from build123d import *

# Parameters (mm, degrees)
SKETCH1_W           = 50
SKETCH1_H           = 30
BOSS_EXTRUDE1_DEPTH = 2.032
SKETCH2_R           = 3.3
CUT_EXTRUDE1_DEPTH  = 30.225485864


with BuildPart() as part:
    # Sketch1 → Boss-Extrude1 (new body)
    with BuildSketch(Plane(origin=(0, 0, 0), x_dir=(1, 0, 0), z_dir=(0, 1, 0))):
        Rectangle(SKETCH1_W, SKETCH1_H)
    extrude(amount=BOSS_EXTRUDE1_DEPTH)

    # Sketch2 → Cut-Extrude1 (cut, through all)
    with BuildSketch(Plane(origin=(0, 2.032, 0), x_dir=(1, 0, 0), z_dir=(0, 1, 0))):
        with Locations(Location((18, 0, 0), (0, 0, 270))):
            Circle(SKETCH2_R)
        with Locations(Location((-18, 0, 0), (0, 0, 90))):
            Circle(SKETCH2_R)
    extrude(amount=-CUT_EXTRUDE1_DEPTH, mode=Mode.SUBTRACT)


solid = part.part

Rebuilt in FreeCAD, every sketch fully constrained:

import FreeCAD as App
import Part
import Sketcher
from FreeCAD import Vector
Q = App.Units.Quantity


def add_polygon(sketch, points):
    """Adds a closed chain of lines whose ends are joined by coincident constraints."""
    first, n = sketch.GeometryCount, len(points)
    for a, b in zip(points, points[1:] + points[:1]):
        sketch.addGeometry(Part.LineSegment(App.Vector(*a, 0), App.Vector(*b, 0)), False)
    for i in range(n):
        sketch.addConstraint(Sketcher.Constraint("Coincident", first + i, 2, first + (i + 1) % n, 1))

doc = App.newDocument("Part")
body = doc.addObject("PartDesign::Body", "Body")

# Sketch on XZ plane
sketch1 = doc.addObject("Sketcher::SketchObject", "Sketch")
body.addObject(sketch1)
sketch1.AttachmentSupport = (doc.XZ_Plane, [""])
sketch1.MapMode = "FlatFace"
add_polygon(sketch1, [(-25, -15), (-25, 15), (25, 15), (25, -15)])  # lines 0-3
sketch1.addConstraint(Sketcher.Constraint("Vertical", 0))
sketch1.addConstraint(Sketcher.Constraint("Horizontal", 1))
sketch1.addConstraint(Sketcher.Constraint("Vertical", 2))
sketch1.addConstraint(Sketcher.Constraint("Horizontal", 3))
sketch1.addConstraint(Sketcher.Constraint("Symmetric", 0, 2, 2, 2, -1, 1))
sketch1.addConstraint(Sketcher.Constraint("DistanceX", 1, 1, 1, 2, Q("50 mm")))
sketch1.addConstraint(Sketcher.Constraint("DistanceY", 0, 1, 0, 2, Q("30 mm")))
pad1 = doc.addObject("PartDesign::Pad", "Pad")
body.addObject(pad1)
pad1.Profile = sketch1
pad1.Length = 2.032
pad1.Reversed = True

# Sketch on XZ plane
sketch2 = doc.addObject("Sketcher::SketchObject", "Sketch001")
body.addObject(sketch2)
sketch2.AttachmentSupport = (doc.XZ_Plane, [""])
sketch2.MapMode = "FlatFace"
sketch2.AttachmentOffset = App.Placement(Vector(0, 0, -2.032), App.Rotation())
sketch2.addGeometry(Part.Circle(Vector(18, 0, 0), Vector(0, 0, 1), 3.3), False)
sketch2.addGeometry(Part.Circle(Vector(-18, 0, 0), Vector(0, 0, 1), 3.3), False)
sketch2.addConstraint(Sketcher.Constraint("Equal", 0, 1))
sketch2.addConstraint(Sketcher.Constraint("Symmetric", 0, 3, 1, 3, -1, 1))
sketch2.addConstraint(Sketcher.Constraint("PointOnObject", 0, 3, -1))
sketch2.addConstraint(Sketcher.Constraint("Diameter", 0, Q("6.6 mm")))
sketch2.addConstraint(Sketcher.Constraint("DistanceX", -1, 1, 0, 3, Q("18 mm")))
pocket1 = doc.addObject("PartDesign::Pocket", "Pocket")
body.addObject(pocket1)
pocket1.Profile = sketch2
pocket1.Type = "ThroughAll"
pocket1.Reversed = True

doc.recompute()
